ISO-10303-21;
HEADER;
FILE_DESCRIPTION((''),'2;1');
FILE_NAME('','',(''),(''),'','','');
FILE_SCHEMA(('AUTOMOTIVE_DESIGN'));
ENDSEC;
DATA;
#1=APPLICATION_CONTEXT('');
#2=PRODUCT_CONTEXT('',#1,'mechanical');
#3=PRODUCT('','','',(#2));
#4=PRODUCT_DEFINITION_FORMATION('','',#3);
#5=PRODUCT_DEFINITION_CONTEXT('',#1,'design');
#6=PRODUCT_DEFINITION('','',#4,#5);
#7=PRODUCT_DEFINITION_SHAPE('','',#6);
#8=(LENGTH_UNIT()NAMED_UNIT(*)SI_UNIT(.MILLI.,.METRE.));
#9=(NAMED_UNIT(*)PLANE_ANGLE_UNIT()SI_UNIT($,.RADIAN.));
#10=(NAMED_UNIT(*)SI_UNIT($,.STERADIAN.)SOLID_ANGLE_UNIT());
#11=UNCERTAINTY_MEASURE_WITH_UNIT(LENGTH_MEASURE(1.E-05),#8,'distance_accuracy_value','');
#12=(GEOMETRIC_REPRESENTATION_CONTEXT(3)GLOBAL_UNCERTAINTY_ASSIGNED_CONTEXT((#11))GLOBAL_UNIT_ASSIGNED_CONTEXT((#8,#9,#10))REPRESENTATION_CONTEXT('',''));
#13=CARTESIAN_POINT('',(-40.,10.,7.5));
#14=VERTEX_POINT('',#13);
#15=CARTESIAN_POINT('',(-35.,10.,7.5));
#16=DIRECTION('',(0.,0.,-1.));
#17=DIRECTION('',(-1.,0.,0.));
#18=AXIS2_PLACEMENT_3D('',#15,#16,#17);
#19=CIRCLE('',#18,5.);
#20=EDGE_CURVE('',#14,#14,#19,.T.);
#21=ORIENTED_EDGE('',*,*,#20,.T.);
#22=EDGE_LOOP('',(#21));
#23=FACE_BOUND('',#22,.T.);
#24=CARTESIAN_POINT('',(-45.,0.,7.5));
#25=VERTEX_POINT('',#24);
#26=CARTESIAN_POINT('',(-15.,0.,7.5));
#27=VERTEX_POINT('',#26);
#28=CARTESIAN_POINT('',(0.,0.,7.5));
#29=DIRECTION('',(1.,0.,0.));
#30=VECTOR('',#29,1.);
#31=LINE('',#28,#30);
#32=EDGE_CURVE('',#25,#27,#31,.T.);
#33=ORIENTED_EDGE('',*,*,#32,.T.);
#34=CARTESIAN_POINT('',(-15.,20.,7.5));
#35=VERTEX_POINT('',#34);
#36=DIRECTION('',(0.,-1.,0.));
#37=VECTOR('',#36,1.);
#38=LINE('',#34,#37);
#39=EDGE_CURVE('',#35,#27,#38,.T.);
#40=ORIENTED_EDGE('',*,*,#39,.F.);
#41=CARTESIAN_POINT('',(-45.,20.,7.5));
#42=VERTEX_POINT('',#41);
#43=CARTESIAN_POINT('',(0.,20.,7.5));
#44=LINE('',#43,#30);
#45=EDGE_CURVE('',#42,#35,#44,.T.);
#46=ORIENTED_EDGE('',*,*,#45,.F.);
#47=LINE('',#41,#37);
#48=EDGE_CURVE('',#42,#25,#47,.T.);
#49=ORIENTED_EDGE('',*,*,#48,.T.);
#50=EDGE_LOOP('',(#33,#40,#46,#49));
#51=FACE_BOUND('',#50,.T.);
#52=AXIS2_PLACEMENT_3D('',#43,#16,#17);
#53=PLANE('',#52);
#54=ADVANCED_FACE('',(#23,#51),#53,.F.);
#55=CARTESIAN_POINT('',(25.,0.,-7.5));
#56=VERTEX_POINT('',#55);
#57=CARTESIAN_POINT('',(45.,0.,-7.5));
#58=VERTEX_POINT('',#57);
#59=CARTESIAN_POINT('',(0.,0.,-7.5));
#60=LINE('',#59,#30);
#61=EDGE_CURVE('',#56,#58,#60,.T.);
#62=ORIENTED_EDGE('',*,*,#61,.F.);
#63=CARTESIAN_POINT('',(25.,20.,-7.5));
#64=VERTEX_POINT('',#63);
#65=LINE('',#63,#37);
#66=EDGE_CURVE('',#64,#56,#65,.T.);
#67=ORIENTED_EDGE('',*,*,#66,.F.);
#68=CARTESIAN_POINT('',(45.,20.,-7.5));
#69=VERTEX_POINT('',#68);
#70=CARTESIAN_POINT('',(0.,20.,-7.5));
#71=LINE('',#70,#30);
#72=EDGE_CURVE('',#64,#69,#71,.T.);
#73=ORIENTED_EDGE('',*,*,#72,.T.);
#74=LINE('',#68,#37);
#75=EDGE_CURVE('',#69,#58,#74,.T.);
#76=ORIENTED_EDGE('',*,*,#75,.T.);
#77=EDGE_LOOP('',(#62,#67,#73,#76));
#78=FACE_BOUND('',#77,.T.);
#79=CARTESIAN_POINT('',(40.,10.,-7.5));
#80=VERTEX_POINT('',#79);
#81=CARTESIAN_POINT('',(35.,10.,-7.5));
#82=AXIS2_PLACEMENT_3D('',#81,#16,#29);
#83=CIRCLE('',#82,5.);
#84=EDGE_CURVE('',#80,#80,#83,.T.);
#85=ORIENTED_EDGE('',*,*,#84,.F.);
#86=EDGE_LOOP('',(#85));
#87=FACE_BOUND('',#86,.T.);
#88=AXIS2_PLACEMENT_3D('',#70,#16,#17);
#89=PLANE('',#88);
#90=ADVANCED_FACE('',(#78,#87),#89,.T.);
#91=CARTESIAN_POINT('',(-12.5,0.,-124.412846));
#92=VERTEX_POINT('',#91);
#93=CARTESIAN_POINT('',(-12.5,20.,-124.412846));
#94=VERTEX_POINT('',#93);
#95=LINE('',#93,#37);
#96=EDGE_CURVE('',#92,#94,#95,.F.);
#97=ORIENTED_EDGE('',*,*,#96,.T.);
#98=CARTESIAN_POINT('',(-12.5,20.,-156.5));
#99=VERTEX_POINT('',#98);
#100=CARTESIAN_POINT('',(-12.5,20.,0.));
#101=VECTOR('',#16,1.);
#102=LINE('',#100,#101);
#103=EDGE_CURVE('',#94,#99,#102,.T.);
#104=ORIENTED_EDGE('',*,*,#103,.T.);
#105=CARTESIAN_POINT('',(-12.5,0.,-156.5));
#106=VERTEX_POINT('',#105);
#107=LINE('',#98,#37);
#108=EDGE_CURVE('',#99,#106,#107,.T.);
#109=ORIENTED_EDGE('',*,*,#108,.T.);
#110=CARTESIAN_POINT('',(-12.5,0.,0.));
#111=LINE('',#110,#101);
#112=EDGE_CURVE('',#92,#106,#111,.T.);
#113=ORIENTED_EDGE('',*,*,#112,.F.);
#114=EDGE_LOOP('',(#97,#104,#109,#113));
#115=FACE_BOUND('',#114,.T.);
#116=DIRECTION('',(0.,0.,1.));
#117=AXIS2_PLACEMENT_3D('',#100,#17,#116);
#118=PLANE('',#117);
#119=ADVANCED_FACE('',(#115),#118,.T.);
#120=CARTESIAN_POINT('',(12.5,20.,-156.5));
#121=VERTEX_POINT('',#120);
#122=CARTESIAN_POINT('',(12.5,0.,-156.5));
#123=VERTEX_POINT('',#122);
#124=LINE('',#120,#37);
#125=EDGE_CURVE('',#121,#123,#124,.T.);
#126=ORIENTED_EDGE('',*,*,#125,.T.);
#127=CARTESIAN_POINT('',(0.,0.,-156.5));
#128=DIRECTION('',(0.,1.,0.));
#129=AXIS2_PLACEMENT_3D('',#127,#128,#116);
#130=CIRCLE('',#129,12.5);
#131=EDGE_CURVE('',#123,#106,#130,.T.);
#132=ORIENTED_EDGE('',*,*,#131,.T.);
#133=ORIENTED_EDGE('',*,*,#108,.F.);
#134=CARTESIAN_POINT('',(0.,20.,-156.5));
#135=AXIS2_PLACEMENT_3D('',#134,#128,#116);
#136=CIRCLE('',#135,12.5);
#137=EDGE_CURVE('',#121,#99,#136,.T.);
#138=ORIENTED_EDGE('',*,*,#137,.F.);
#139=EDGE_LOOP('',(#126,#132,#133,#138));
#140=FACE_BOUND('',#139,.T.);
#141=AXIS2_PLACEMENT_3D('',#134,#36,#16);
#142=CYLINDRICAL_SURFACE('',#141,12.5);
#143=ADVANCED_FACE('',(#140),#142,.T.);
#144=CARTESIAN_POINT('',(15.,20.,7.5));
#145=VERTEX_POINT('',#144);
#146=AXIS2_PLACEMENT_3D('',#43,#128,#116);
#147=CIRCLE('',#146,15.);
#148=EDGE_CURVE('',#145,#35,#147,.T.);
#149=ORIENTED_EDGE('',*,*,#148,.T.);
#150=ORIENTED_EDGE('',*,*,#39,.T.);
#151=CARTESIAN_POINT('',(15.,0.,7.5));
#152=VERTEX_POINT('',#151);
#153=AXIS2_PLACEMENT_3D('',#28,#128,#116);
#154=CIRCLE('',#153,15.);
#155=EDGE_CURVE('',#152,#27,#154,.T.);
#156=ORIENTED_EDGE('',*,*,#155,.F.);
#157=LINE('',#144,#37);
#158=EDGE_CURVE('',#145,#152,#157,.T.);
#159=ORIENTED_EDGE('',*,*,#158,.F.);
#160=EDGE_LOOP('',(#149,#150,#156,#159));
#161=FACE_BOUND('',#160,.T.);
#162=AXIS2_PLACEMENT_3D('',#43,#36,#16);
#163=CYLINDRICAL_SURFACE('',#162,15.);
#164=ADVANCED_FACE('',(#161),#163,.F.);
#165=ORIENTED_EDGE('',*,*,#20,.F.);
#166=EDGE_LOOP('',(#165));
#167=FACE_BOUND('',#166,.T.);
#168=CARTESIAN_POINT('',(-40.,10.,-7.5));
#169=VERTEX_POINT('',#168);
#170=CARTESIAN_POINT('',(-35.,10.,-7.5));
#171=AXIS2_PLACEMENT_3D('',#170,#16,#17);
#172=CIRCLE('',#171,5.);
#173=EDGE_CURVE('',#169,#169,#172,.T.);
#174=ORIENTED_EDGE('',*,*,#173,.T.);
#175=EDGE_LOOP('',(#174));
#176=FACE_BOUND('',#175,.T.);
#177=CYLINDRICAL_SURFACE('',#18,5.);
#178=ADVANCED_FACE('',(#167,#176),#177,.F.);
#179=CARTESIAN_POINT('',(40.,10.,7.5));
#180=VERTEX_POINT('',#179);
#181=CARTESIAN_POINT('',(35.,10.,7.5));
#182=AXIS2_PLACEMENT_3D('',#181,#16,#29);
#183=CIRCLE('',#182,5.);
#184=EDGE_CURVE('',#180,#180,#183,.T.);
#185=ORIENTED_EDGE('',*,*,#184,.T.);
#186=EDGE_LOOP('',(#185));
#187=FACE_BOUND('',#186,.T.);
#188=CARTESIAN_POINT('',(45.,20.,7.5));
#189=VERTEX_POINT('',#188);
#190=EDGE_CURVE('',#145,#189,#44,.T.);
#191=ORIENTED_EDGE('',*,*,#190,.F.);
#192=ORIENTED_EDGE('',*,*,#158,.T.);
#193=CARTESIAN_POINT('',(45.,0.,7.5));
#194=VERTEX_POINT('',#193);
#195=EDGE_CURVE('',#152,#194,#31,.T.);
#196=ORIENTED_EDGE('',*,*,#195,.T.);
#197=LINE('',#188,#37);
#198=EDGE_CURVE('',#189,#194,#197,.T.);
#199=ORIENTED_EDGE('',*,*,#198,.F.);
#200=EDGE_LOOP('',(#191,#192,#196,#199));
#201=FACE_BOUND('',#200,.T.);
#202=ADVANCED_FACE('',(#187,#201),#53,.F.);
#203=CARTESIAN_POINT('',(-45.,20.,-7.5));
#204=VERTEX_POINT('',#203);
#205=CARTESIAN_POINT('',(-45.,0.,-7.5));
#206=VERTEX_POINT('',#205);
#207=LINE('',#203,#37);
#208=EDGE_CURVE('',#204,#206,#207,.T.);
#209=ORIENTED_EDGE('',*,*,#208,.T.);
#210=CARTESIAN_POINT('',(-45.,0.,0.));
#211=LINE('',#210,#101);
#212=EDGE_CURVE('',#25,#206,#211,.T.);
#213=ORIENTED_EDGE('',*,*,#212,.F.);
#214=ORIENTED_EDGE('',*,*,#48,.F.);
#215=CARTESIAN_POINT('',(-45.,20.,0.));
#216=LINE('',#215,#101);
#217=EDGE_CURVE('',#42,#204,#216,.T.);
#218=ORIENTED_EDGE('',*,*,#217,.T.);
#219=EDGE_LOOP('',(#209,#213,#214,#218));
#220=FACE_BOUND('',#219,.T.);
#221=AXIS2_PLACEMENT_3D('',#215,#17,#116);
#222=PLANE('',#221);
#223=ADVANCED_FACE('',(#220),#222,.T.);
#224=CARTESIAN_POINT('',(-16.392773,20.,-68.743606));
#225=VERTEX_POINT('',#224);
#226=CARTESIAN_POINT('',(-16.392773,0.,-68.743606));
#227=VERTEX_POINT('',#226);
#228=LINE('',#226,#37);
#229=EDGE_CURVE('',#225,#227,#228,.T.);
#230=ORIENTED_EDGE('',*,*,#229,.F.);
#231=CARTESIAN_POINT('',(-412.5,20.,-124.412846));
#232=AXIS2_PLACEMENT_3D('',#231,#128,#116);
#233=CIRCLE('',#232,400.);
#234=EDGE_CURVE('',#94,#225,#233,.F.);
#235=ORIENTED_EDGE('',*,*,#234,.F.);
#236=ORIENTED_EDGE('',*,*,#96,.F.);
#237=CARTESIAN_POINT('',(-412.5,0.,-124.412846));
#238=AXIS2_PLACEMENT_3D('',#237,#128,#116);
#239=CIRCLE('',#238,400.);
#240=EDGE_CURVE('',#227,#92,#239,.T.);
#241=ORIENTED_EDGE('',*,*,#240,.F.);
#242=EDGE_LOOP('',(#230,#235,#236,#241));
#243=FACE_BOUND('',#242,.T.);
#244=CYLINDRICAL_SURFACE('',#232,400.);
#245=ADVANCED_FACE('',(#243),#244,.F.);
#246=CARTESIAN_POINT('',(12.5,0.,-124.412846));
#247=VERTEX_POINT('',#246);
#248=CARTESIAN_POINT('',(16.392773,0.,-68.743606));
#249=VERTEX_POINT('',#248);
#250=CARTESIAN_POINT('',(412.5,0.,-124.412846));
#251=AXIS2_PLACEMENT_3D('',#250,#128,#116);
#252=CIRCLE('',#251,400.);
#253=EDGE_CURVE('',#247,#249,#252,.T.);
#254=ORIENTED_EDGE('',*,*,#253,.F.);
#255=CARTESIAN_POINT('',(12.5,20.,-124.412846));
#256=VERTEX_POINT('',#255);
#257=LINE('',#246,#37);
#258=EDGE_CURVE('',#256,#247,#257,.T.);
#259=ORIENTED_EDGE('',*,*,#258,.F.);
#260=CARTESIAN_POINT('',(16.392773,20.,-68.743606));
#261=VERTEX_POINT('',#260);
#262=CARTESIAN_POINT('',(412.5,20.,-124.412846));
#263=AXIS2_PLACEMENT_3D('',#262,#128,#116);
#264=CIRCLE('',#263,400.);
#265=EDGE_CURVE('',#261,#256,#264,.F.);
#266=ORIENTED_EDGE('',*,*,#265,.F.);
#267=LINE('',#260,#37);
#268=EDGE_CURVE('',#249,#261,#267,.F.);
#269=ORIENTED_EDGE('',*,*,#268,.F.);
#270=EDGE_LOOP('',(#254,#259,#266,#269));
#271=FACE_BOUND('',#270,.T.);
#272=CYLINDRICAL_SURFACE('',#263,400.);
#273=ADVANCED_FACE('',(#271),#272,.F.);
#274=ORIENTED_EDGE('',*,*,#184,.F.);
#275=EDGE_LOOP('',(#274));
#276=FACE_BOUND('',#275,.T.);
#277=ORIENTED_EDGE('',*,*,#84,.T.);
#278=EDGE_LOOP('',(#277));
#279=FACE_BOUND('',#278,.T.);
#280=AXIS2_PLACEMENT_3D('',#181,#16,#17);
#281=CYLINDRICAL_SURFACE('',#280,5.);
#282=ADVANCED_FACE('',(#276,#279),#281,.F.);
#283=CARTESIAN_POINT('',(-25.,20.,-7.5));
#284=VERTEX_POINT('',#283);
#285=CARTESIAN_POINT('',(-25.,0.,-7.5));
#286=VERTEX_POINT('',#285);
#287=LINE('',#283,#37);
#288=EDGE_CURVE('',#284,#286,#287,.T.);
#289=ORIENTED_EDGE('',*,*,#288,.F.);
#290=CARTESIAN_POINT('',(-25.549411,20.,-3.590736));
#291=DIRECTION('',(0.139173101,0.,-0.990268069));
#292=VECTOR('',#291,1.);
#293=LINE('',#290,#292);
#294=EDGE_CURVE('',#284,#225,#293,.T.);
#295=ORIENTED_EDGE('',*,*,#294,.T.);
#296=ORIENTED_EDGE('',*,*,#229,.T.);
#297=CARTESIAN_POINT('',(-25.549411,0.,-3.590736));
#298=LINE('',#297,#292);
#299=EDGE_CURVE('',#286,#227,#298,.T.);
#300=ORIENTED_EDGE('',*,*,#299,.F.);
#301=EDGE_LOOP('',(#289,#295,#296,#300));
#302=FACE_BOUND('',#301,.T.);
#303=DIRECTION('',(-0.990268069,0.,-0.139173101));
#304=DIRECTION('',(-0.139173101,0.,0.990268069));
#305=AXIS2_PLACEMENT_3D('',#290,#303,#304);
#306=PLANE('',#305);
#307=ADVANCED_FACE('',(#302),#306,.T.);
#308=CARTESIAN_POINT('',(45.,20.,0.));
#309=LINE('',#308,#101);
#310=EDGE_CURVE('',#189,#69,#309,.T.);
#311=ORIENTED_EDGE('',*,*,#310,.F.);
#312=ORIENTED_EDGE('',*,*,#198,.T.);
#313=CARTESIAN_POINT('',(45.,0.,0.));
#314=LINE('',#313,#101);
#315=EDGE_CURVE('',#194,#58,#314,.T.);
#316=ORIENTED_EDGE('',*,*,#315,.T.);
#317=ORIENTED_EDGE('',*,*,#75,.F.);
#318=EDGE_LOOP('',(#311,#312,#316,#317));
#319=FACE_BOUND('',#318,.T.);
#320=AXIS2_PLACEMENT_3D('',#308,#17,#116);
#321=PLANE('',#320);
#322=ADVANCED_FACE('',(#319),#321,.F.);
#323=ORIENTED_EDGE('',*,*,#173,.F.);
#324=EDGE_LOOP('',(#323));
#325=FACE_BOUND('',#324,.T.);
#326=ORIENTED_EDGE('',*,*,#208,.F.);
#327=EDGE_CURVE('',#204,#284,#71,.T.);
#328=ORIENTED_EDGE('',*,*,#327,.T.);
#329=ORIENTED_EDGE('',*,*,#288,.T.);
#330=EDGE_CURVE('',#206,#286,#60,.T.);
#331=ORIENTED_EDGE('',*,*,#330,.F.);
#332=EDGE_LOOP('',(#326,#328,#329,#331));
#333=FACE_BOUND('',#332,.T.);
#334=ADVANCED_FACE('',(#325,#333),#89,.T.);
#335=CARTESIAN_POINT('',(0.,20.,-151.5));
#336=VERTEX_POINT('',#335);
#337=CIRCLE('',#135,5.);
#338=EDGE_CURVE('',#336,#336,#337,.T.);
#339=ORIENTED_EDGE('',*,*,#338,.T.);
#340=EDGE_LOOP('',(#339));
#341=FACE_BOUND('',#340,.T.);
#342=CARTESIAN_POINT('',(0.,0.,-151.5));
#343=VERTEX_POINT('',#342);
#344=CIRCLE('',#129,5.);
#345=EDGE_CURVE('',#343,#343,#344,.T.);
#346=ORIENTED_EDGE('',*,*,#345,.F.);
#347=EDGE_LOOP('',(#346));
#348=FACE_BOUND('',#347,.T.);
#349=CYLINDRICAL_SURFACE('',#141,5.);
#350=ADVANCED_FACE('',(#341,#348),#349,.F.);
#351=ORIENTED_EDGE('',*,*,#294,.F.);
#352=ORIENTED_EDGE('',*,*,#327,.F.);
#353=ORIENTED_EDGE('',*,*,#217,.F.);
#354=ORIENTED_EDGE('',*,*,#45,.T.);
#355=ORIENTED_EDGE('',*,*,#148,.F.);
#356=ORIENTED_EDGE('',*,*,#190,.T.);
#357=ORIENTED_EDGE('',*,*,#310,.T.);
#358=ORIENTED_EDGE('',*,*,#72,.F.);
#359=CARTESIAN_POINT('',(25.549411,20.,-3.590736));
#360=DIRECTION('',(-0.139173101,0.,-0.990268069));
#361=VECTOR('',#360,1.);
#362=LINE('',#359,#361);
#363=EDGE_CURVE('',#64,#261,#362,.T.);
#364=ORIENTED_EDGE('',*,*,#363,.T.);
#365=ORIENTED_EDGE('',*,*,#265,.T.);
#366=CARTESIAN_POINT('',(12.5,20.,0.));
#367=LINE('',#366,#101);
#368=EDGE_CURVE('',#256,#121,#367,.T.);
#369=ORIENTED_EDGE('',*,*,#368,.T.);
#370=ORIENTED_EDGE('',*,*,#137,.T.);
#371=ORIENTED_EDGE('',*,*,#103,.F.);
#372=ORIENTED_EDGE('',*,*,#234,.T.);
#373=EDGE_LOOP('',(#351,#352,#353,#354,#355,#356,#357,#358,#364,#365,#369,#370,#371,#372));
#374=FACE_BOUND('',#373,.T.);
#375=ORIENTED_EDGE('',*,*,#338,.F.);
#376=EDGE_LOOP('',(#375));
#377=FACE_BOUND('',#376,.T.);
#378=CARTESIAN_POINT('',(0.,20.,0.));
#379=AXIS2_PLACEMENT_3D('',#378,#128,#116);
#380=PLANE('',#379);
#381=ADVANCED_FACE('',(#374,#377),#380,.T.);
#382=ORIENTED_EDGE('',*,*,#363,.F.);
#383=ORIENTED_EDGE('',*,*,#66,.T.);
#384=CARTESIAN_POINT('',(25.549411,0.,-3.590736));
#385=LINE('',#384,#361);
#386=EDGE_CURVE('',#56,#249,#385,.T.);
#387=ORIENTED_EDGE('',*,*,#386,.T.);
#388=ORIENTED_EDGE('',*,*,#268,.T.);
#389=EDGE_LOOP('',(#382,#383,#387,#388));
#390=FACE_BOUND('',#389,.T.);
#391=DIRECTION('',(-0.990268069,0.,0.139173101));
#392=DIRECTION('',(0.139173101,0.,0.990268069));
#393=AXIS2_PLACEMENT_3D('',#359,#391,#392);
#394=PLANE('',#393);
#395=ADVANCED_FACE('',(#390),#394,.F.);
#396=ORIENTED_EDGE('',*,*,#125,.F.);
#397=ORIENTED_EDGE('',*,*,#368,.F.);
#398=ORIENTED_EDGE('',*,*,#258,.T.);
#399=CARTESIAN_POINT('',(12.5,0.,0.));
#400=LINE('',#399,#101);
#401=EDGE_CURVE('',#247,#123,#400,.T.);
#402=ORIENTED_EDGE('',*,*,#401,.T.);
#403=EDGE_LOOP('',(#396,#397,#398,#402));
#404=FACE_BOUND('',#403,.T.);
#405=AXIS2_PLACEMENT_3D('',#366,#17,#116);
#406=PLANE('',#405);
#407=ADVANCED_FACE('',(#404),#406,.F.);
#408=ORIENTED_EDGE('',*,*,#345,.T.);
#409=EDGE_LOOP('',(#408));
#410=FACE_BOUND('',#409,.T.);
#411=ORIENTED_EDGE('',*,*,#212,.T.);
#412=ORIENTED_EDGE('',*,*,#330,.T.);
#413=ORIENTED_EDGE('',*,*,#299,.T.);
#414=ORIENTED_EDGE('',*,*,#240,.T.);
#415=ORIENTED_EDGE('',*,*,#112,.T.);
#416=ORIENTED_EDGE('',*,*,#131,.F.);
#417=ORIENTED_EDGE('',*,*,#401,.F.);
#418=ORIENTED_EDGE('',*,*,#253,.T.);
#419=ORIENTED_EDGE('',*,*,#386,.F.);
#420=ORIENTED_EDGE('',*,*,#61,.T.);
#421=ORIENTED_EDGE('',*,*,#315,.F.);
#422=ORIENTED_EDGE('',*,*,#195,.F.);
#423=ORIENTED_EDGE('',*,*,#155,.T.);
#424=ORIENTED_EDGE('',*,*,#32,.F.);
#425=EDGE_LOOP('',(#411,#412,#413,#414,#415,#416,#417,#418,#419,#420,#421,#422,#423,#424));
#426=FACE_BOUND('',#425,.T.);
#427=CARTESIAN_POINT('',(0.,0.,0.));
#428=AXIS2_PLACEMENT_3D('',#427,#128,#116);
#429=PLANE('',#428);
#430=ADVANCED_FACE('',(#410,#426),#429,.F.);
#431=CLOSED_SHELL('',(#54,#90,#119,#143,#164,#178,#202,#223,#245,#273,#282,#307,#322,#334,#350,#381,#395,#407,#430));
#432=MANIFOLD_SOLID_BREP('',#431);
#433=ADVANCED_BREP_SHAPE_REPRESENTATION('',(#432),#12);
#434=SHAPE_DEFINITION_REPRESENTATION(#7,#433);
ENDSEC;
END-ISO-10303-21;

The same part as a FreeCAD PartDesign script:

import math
import FreeCAD as App
import Part
import Sketcher
Q = App.Units.Quantity


def edges_at(feature, points):
    """Names of the edges that pass closest to the given points."""
    edges = feature.Shape.Edges
    near = lambda p: min(range(len(edges)), key=lambda i: edges[i].distToShape(Part.Vertex(*p))[0])
    return sorted({f"Edge{near(p) + 1}" for p in points})

doc = App.newDocument("Part")
params = doc.addObject("Spreadsheet::Sheet", "Params")
for row, (alias, value) in enumerate([
    ("sketch1_diameter", "10 mm"),
    ("sketch1_radius", "15 mm"),
    ("sketch1_radius2", "12.5 mm"),
    ("sketch1_width", "20 mm"),
    ("sketch1_width2", "30 mm"),
    ("pad1_length", "20 mm"),
    ("sketch2_diameter", "10 mm"),
    ("fillet_radius", "400 mm"),
], start=1):
    params.set(f"A{row}", alias)
    params.set(f"B{row}", "=" + value)
    params.setAlias(f"B{row}", alias)

body = doc.addObject("PartDesign::Body", "Body")

# Sketch on XZ plane
sketch1 = body.newObject("Sketcher::SketchObject", "Sketch")
sketch1.AttachmentSupport = (doc.getObject("XZ_Plane"), [""])
sketch1.MapMode = "FlatFace"
sketch1.addGeometry(Part.ArcOfCircle(Part.Circle(App.Vector(0, -156, 0), App.Vector(0, 0, 1), 12), math.radians(180), math.radians(360)), False)
sketch1.addGeometry(Part.LineSegment(App.Vector(-12, -156, 0), App.Vector(-12, -96, 0)), False)
sketch1.addGeometry(Part.LineSegment(App.Vector(-12, -96, 0), App.Vector(-25, -8, 0)), False)
sketch1.addGeometry(Part.LineSegment(App.Vector(-25, -8, 0), App.Vector(-45, -8, 0)), False)
sketch1.addGeometry(Part.LineSegment(App.Vector(-45, -8, 0), App.Vector(-45, 8, 0)), False)
sketch1.addGeometry(Part.LineSegment(App.Vector(-45, 8, 0), App.Vector(-15, 8, 0)), False)
sketch1.addGeometry(Part.ArcOfCircle(Part.Circle(App.Vector(0, 7, 0), App.Vector(0, 0, 1), 15), math.radians(180), math.radians(270)), False)
sketch1.addGeometry(Part.ArcOfCircle(Part.Circle(App.Vector(0, 7, 0), App.Vector(0, 0, 1), 15), math.radians(-90), math.radians(0)), False)
sketch1.addGeometry(Part.LineSegment(App.Vector(15, 8, 0), App.Vector(45, 8, 0)), False)
sketch1.addGeometry(Part.LineSegment(App.Vector(45, 8, 0), App.Vector(45, -8, 0)), False)
sketch1.addGeometry(Part.LineSegment(App.Vector(45, -8, 0), App.Vector(25, -8, 0)), False)
sketch1.addGeometry(Part.LineSegment(App.Vector(25, -8, 0), App.Vector(12, -96, 0)), False)
sketch1.addGeometry(Part.LineSegment(App.Vector(12, -96, 0), App.Vector(12, -156, 0)), False)
sketch1.addGeometry(Part.Circle(App.Vector(0, -156, 0), App.Vector(0, 0, 1), 5), False)
sketch1.addConstraint(Sketcher.Constraint("Tangent", 0, 1, 1, 1))
sketch1.addConstraint(Sketcher.Constraint("Coincident", 1, 2, 2, 1))
sketch1.addConstraint(Sketcher.Constraint("Coincident", 2, 2, 3, 1))
sketch1.addConstraint(Sketcher.Constraint("Coincident", 3, 2, 4, 1))
sketch1.addConstraint(Sketcher.Constraint("Coincident", 4, 2, 5, 1))
sketch1.addConstraint(Sketcher.Constraint("Coincident", 5, 2, 6, 1))
sketch1.addConstraint(Sketcher.Constraint("Tangent", 6, 2, 7, 1))
sketch1.addConstraint(Sketcher.Constraint("Coincident", 7, 2, 8, 1))
sketch1.addConstraint(Sketcher.Constraint("Coincident", 8, 2, 9, 1))
sketch1.addConstraint(Sketcher.Constraint("Coincident", 9, 2, 10, 1))
sketch1.addConstraint(Sketcher.Constraint("Coincident", 10, 2, 11, 1))
sketch1.addConstraint(Sketcher.Constraint("Coincident", 11, 2, 12, 1))
sketch1.addConstraint(Sketcher.Constraint("Tangent", 12, 2, 0, 2))
sketch1.addConstraint(Sketcher.Constraint("Vertical", 1))
sketch1.addConstraint(Sketcher.Constraint("Horizontal", 3))
sketch1.addConstraint(Sketcher.Constraint("Vertical", 4))
sketch1.addConstraint(Sketcher.Constraint("Horizontal", 5))
sketch1.addConstraint(Sketcher.Constraint("Horizontal", 8))
sketch1.addConstraint(Sketcher.Constraint("Vertical", 9))
sketch1.addConstraint(Sketcher.Constraint("Horizontal", 10))
sketch1.addConstraint(Sketcher.Constraint("Vertical", 12))
sketch1.addConstraint(Sketcher.Constraint("Coincident", 13, 3, 0, 3))
sketch1.addConstraint(Sketcher.Constraint("Equal", 6, 7))
sketch1.addConstraint(Sketcher.Constraint("Symmetric", 3, 2, 8, 2, -1, 1))
sketch1.addConstraint(Sketcher.Constraint("Symmetric", 5, 2, 7, 2, -2))
sketch1.addConstraint(Sketcher.Constraint("Symmetric", 2, 2, 10, 2, -2))
sketch1.addConstraint(Sketcher.Constraint("Symmetric", 1, 2, 11, 2, -2))
sketch1.addConstraint(Sketcher.Constraint("PointOnObject", 6, 2, -2))
sketch1.addConstraint(Sketcher.Constraint("Horizontal", 7, 3, 4, 2))
sketch1.addConstraint(Sketcher.Constraint("Horizontal", 3, 2, 6, 2))
sketch1.addConstraint(Sketcher.Constraint("Diameter", 13, Q("10 mm")))
sketch1.addConstraint(Sketcher.Constraint("Radius", 6, Q("15 mm")))
sketch1.addConstraint(Sketcher.Constraint("Radius", 0, Q("12.5 mm")))
sketch1.addConstraint(Sketcher.Constraint("DistanceX", 3, 2, 3, 1, Q("20 mm")))
sketch1.addConstraint(Sketcher.Constraint("DistanceX", 5, 1, 5, 2, Q("30 mm")))
sketch1.addConstraint(Sketcher.Constraint("Angle", 2, Q("98 deg")))
sketch1.addConstraint(Sketcher.Constraint("DistanceY", 0, 3, 6, 3, Q("164 mm")))
sketch1.setExpression("Constraints[30]", "Params.sketch1_diameter")
sketch1.setExpression("Constraints[31]", "Params.sketch1_radius")
sketch1.setExpression("Constraints[32]", "Params.sketch1_radius2")
sketch1.setExpression("Constraints[33]", "Params.sketch1_width")
sketch1.setExpression("Constraints[34]", "Params.sketch1_width2")
pad1 = body.newObject("PartDesign::Pad", "Pad")
pad1.Profile = sketch1
pad1.setExpression("Length", "Params.pad1_length")
pad1.Reversed = True

# Sketch on XY plane
sketch2 = body.newObject("Sketcher::SketchObject", "Sketch001")
sketch2.AttachmentSupport = (doc.getObject("XY_Plane"), [""])
sketch2.MapMode = "FlatFace"
sketch2.AttachmentOffset = App.Placement(App.Vector(0, 0, -7.5), App.Rotation())
sketch2.addGeometry(Part.Circle(App.Vector(-35, 10, 0), App.Vector(0, 0, 1), 5), False)
sketch2.addGeometry(Part.Circle(App.Vector(35, 10, 0), App.Vector(0, 0, 1), 5), False)
sketch2.addConstraint(Sketcher.Constraint("Equal", 0, 1))
sketch2.addConstraint(Sketcher.Constraint("Symmetric", 0, 3, 1, 3, -2))
sketch2.addConstraint(Sketcher.Constraint("Diameter", 0, Q("10 mm")))
sketch2.addConstraint(Sketcher.Constraint("DistanceX", 0, 3, -1, 1, Q("35 mm")))
sketch2.addConstraint(Sketcher.Constraint("DistanceY", -1, 1, 0, 3, Q("10 mm")))
sketch2.setExpression("Constraints[2]", "Params.sketch2_diameter")
pocket1 = body.newObject("PartDesign::Pocket", "Pocket")
pocket1.Profile = sketch2
pocket1.Type = "ThroughAll"
pocket1.Reversed = True
doc.recompute()

fillet = body.newObject("PartDesign::Fillet", "Fillet")
fillet.Base = (pocket1, edges_at(pocket1, [(12.5, 10, -96.442), (-12.5, 10, -96.442)]))
fillet.setExpression("Radius", "Params.fillet_radius")

doc.recompute()
